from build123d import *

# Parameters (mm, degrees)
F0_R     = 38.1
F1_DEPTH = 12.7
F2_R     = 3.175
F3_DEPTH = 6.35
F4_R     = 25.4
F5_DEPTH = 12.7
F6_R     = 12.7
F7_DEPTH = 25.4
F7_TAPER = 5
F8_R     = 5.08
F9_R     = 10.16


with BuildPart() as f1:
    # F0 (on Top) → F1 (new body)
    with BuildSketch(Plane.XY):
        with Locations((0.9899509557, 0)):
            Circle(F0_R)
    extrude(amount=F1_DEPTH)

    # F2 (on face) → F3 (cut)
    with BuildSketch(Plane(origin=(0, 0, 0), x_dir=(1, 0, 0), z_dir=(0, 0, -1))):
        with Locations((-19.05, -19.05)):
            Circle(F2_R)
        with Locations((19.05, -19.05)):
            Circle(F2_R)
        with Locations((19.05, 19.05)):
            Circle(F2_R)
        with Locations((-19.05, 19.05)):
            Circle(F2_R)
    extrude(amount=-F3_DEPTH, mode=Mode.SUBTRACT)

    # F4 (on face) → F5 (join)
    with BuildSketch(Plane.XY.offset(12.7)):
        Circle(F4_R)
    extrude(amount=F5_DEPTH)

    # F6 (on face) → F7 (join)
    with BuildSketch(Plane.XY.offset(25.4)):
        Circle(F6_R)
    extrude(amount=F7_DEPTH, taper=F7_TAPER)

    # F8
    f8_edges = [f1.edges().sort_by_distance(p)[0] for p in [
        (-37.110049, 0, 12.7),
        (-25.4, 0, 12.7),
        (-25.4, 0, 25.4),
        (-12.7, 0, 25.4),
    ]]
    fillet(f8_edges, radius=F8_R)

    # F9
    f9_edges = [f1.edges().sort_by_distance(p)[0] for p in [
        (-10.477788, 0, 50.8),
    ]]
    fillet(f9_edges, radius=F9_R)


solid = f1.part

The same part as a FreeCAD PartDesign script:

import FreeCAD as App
import Part
import Sketcher

V = App.Vector
Q = App.Units.Quantity


def edges_at(feature, points):
    """Names of the edges that pass closest to the given points."""
    edges = feature.Shape.Edges
    near = lambda p: min(range(len(edges)), key=lambda i: edges[i].distToShape(Part.Vertex(*p))[0])
    return sorted({f"Edge{near(p) + 1}" for p in points})

doc = App.newDocument("Part")
body = doc.addObject("PartDesign::Body", "Body")

sketch1 = doc.addObject("Sketcher::SketchObject", "Sketch")
body.addObject(sketch1)
sketch1.AttachmentSupport = (doc.XY_Plane, [""])
sketch1.MapMode = "FlatFace"
sketch1.addGeometry(Part.Circle(V(1, 0, 0), V(0, 0, 1), 38), False)
sketch1.addConstraint([
    Sketcher.Constraint("PointOnObject", 0, 3, -1),
    Sketcher.Constraint("Diameter", 0, Q("3 in")),
    Sketcher.Constraint("DistanceX", -1, 1, 0, 3, Q("0.989951 mm")),
])
pad1 = doc.addObject("PartDesign::Pad", "Pad")
body.addObject(pad1)
pad1.Profile = sketch1
pad1.Length = Q("0.5 in")

sketch2 = doc.addObject("Sketcher::SketchObject", "Sketch001")
body.addObject(sketch2)
sketch2.AttachmentSupport = (doc.XY_Plane, [""])
sketch2.MapMode = "FlatFace"
sketch2.addGeometry([
    Part.Circle(V(-19.1, 19.1, 0), V(0, 0, 1), 3.2),
    Part.Circle(V(19.1, 19.1, 0), V(0, 0, 1), 3.2),
    Part.Circle(V(19.1, -19.1, 0), V(0, 0, 1), 3.2),
    Part.Circle(V(-19.1, -19.1, 0), V(0, 0, 1), 3.2),
], False)
sketch2.addConstraint([
    Sketcher.Constraint("Equal", 0, 1),
    Sketcher.Constraint("Equal", 1, 2),
    Sketcher.Constraint("Equal", 2, 3),
    Sketcher.Constraint("Symmetric", 0, 3, 2, 3, -1, 1),
    Sketcher.Constraint("Symmetric", 1, 3, 3, 3, -1, 1),
    Sketcher.Constraint("Symmetric", 0, 3, 1, 3, -2),
    Sketcher.Constraint("Diameter", 0, Q("0.25 in")),
    Sketcher.Constraint("DistanceX", 0, 3, 1, 3, Q("1.5 in")),
    Sketcher.Constraint("DistanceY", 2, 3, 1, 3, Q("1.5 in")),
])
pocket1 = doc.addObject("PartDesign::Pocket", "Pocket")
body.addObject(pocket1)
pocket1.Profile = sketch2
pocket1.Length = Q("0.25 in")
pocket1.Reversed = True

sketch3 = doc.addObject("Sketcher::SketchObject", "Sketch002")
body.addObject(sketch3)
sketch3.AttachmentSupport = (doc.XY_Plane, [""])
sketch3.MapMode = "FlatFace"
sketch3.AttachmentOffset = App.Placement(V(0, 0, 0.5 * 25.4), App.Rotation())
sketch3.addGeometry(Part.Circle(V(0, 0, 0), V(0, 0, 1), 25), False)
sketch3.addConstraint([
    Sketcher.Constraint("Coincident", 0, 3, -1, 1),
    Sketcher.Constraint("Diameter", 0, Q("2 in")),
])
pad2 = doc.addObject("PartDesign::Pad", "Pad001")
body.addObject(pad2)
pad2.Profile = sketch3
pad2.Length = Q("0.5 in")

sketch4 = doc.addObject("Sketcher::SketchObject", "Sketch003")
body.addObject(sketch4)
sketch4.AttachmentSupport = (doc.XY_Plane, [""])
sketch4.MapMode = "FlatFace"
sketch4.AttachmentOffset = App.Placement(V(0, 0, 1 * 25.4), App.Rotation())
sketch4.addGeometry(Part.Circle(V(0, 0, 0), V(0, 0, 1), 13), False)
sketch4.addConstraint([
    Sketcher.Constraint("Coincident", 0, 3, -1, 1),
    Sketcher.Constraint("Diameter", 0, Q("1 in")),
])
pad3 = doc.addObject("PartDesign::Pad", "Pad002")
body.addObject(pad3)
pad3.Profile = sketch4
pad3.Length = Q("1 in")
pad3.TaperAngle = -5
doc.recompute()

fillet = doc.addObject("PartDesign::Fillet", "Fillet")
body.addObject(fillet)
fillet.Base = (pad3, edges_at(pad3, [
    (-37.11, 0, 12.7),
    (-25.4, 0, 12.7),
    (-25.4, 0, 25.4),
    (-12.7, 0, 25.4),
]))
fillet.Radius = Q("0.2 in")
doc.recompute()

fillet2 = doc.addObject("PartDesign::Fillet", "Fillet001")
body.addObject(fillet2)
fillet2.Base = (fillet, edges_at(fillet, [(-10.478, 0, 50.8)]))
fillet2.Radius = Q("0.4 in")

doc.recompute()
